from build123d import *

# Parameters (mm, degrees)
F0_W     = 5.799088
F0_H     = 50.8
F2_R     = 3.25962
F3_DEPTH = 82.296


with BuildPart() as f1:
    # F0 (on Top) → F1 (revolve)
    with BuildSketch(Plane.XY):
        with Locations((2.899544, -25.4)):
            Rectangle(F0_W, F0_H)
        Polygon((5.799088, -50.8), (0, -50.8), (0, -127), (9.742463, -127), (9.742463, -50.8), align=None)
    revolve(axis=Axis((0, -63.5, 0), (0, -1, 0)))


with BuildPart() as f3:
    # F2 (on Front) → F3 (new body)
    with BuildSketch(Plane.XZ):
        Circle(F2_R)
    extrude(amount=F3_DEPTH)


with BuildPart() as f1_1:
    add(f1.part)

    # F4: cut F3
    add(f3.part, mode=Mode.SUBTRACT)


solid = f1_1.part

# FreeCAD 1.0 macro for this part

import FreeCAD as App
import Part
import Sketcher
from FreeCAD import Vector
Q = App.Units.Quantity


def add_polygon(sketch, points):
    """Adds a closed chain of lines whose ends are joined by coincident constraints."""
    first, n = sketch.GeometryCount, len(points)
    for a, b in zip(points, points[1:] + points[:1]):
        sketch.addGeometry(Part.LineSegment(App.Vector(*a, 0), App.Vector(*b, 0)), False)
    for i in range(n):
        sketch.addConstraint(Sketcher.Constraint("Coincident", first + i, 2, first + (i + 1) % n, 1))

doc = App.newDocument("Part")
params = doc.addObject("Spreadsheet::Sheet", "Params")
for row, (alias, value) in enumerate([
    ("sketch1_height", "5 in"),
    ("sketch1_height2", "3 in"),
    ("revolution_angle", "360 deg"),
    ("pad1_length", "3.24 in"),
], start=1):
    params.set(f"A{row}", alias)
    params.set(f"B{row}", "=" + value)
    params.setAlias(f"B{row}", alias)

body = doc.addObject("PartDesign::Body", "Body")

sketch1 = body.newObject("Sketcher::SketchObject", "Sketch")
sketch1.AttachmentSupport = (doc.getObject("XY_Plane"), [""])
sketch1.MapMode = "FlatFace"
add_polygon(sketch1, [(0, 0), (0, -127), (9.7, -127), (9.7, -50.8), (5.8, -50.8), (5.8, 0)])
sketch1.addConstraint([
    Sketcher.Constraint("Vertical", 0),
    Sketcher.Constraint("Horizontal", 1),
    Sketcher.Constraint("Vertical", 2),
    Sketcher.Constraint("Horizontal", 3),
    Sketcher.Constraint("Vertical", 4),
    Sketcher.Constraint("Horizontal", 5),
    Sketcher.Constraint("Coincident", 5, 2, -1, 1),
    Sketcher.Constraint("DistanceY", 0, 2, 0, 1, Q("5 in")),
    Sketcher.Constraint("DistanceY", 2, 1, 2, 2, Q("3 in")),
    Sketcher.Constraint("DistanceX", 5, 2, 5, 1, 5.799088),
    Sketcher.Constraint("DistanceX", 1, 1, 1, 2, 9.742463),
])
sketch1.setExpression("Constraints[13]", "Params.sketch1_height")
sketch1.setExpression("Constraints[14]", "Params.sketch1_height2")
revolution = body.newObject("PartDesign::Revolution", "Revolution")
revolution.Profile = sketch1
revolution.ReferenceAxis = (sketch1, ["V_Axis"])
revolution.setExpression("Angle", "Params.revolution_angle")
body2 = doc.addObject("PartDesign::Body", "Body001")

sketch2 = body2.newObject("Sketcher::SketchObject", "Sketch001")
sketch2.AttachmentSupport = (doc.getObject("XZ_Plane001"), [""])
sketch2.MapMode = "FlatFace"
sketch2.addGeometry(Part.Circle(Vector(0, 0, 0), Vector(0, 0, 1), 3.3), False)
sketch2.addConstraint([
    Sketcher.Constraint("Coincident", 0, 3, -1, 1),
    Sketcher.Constraint("Diameter", 0, 6.51924),
])
pad1 = body2.newObject("PartDesign::Pad", "Pad")
pad1.Profile = sketch2
pad1.setExpression("Length", "Params.pad1_length")
doc.recompute()

boolean = body.newObject("PartDesign::Boolean", "Boolean")
boolean.Type = "Cut"
boolean.addObjects([body2])

doc.recompute()
